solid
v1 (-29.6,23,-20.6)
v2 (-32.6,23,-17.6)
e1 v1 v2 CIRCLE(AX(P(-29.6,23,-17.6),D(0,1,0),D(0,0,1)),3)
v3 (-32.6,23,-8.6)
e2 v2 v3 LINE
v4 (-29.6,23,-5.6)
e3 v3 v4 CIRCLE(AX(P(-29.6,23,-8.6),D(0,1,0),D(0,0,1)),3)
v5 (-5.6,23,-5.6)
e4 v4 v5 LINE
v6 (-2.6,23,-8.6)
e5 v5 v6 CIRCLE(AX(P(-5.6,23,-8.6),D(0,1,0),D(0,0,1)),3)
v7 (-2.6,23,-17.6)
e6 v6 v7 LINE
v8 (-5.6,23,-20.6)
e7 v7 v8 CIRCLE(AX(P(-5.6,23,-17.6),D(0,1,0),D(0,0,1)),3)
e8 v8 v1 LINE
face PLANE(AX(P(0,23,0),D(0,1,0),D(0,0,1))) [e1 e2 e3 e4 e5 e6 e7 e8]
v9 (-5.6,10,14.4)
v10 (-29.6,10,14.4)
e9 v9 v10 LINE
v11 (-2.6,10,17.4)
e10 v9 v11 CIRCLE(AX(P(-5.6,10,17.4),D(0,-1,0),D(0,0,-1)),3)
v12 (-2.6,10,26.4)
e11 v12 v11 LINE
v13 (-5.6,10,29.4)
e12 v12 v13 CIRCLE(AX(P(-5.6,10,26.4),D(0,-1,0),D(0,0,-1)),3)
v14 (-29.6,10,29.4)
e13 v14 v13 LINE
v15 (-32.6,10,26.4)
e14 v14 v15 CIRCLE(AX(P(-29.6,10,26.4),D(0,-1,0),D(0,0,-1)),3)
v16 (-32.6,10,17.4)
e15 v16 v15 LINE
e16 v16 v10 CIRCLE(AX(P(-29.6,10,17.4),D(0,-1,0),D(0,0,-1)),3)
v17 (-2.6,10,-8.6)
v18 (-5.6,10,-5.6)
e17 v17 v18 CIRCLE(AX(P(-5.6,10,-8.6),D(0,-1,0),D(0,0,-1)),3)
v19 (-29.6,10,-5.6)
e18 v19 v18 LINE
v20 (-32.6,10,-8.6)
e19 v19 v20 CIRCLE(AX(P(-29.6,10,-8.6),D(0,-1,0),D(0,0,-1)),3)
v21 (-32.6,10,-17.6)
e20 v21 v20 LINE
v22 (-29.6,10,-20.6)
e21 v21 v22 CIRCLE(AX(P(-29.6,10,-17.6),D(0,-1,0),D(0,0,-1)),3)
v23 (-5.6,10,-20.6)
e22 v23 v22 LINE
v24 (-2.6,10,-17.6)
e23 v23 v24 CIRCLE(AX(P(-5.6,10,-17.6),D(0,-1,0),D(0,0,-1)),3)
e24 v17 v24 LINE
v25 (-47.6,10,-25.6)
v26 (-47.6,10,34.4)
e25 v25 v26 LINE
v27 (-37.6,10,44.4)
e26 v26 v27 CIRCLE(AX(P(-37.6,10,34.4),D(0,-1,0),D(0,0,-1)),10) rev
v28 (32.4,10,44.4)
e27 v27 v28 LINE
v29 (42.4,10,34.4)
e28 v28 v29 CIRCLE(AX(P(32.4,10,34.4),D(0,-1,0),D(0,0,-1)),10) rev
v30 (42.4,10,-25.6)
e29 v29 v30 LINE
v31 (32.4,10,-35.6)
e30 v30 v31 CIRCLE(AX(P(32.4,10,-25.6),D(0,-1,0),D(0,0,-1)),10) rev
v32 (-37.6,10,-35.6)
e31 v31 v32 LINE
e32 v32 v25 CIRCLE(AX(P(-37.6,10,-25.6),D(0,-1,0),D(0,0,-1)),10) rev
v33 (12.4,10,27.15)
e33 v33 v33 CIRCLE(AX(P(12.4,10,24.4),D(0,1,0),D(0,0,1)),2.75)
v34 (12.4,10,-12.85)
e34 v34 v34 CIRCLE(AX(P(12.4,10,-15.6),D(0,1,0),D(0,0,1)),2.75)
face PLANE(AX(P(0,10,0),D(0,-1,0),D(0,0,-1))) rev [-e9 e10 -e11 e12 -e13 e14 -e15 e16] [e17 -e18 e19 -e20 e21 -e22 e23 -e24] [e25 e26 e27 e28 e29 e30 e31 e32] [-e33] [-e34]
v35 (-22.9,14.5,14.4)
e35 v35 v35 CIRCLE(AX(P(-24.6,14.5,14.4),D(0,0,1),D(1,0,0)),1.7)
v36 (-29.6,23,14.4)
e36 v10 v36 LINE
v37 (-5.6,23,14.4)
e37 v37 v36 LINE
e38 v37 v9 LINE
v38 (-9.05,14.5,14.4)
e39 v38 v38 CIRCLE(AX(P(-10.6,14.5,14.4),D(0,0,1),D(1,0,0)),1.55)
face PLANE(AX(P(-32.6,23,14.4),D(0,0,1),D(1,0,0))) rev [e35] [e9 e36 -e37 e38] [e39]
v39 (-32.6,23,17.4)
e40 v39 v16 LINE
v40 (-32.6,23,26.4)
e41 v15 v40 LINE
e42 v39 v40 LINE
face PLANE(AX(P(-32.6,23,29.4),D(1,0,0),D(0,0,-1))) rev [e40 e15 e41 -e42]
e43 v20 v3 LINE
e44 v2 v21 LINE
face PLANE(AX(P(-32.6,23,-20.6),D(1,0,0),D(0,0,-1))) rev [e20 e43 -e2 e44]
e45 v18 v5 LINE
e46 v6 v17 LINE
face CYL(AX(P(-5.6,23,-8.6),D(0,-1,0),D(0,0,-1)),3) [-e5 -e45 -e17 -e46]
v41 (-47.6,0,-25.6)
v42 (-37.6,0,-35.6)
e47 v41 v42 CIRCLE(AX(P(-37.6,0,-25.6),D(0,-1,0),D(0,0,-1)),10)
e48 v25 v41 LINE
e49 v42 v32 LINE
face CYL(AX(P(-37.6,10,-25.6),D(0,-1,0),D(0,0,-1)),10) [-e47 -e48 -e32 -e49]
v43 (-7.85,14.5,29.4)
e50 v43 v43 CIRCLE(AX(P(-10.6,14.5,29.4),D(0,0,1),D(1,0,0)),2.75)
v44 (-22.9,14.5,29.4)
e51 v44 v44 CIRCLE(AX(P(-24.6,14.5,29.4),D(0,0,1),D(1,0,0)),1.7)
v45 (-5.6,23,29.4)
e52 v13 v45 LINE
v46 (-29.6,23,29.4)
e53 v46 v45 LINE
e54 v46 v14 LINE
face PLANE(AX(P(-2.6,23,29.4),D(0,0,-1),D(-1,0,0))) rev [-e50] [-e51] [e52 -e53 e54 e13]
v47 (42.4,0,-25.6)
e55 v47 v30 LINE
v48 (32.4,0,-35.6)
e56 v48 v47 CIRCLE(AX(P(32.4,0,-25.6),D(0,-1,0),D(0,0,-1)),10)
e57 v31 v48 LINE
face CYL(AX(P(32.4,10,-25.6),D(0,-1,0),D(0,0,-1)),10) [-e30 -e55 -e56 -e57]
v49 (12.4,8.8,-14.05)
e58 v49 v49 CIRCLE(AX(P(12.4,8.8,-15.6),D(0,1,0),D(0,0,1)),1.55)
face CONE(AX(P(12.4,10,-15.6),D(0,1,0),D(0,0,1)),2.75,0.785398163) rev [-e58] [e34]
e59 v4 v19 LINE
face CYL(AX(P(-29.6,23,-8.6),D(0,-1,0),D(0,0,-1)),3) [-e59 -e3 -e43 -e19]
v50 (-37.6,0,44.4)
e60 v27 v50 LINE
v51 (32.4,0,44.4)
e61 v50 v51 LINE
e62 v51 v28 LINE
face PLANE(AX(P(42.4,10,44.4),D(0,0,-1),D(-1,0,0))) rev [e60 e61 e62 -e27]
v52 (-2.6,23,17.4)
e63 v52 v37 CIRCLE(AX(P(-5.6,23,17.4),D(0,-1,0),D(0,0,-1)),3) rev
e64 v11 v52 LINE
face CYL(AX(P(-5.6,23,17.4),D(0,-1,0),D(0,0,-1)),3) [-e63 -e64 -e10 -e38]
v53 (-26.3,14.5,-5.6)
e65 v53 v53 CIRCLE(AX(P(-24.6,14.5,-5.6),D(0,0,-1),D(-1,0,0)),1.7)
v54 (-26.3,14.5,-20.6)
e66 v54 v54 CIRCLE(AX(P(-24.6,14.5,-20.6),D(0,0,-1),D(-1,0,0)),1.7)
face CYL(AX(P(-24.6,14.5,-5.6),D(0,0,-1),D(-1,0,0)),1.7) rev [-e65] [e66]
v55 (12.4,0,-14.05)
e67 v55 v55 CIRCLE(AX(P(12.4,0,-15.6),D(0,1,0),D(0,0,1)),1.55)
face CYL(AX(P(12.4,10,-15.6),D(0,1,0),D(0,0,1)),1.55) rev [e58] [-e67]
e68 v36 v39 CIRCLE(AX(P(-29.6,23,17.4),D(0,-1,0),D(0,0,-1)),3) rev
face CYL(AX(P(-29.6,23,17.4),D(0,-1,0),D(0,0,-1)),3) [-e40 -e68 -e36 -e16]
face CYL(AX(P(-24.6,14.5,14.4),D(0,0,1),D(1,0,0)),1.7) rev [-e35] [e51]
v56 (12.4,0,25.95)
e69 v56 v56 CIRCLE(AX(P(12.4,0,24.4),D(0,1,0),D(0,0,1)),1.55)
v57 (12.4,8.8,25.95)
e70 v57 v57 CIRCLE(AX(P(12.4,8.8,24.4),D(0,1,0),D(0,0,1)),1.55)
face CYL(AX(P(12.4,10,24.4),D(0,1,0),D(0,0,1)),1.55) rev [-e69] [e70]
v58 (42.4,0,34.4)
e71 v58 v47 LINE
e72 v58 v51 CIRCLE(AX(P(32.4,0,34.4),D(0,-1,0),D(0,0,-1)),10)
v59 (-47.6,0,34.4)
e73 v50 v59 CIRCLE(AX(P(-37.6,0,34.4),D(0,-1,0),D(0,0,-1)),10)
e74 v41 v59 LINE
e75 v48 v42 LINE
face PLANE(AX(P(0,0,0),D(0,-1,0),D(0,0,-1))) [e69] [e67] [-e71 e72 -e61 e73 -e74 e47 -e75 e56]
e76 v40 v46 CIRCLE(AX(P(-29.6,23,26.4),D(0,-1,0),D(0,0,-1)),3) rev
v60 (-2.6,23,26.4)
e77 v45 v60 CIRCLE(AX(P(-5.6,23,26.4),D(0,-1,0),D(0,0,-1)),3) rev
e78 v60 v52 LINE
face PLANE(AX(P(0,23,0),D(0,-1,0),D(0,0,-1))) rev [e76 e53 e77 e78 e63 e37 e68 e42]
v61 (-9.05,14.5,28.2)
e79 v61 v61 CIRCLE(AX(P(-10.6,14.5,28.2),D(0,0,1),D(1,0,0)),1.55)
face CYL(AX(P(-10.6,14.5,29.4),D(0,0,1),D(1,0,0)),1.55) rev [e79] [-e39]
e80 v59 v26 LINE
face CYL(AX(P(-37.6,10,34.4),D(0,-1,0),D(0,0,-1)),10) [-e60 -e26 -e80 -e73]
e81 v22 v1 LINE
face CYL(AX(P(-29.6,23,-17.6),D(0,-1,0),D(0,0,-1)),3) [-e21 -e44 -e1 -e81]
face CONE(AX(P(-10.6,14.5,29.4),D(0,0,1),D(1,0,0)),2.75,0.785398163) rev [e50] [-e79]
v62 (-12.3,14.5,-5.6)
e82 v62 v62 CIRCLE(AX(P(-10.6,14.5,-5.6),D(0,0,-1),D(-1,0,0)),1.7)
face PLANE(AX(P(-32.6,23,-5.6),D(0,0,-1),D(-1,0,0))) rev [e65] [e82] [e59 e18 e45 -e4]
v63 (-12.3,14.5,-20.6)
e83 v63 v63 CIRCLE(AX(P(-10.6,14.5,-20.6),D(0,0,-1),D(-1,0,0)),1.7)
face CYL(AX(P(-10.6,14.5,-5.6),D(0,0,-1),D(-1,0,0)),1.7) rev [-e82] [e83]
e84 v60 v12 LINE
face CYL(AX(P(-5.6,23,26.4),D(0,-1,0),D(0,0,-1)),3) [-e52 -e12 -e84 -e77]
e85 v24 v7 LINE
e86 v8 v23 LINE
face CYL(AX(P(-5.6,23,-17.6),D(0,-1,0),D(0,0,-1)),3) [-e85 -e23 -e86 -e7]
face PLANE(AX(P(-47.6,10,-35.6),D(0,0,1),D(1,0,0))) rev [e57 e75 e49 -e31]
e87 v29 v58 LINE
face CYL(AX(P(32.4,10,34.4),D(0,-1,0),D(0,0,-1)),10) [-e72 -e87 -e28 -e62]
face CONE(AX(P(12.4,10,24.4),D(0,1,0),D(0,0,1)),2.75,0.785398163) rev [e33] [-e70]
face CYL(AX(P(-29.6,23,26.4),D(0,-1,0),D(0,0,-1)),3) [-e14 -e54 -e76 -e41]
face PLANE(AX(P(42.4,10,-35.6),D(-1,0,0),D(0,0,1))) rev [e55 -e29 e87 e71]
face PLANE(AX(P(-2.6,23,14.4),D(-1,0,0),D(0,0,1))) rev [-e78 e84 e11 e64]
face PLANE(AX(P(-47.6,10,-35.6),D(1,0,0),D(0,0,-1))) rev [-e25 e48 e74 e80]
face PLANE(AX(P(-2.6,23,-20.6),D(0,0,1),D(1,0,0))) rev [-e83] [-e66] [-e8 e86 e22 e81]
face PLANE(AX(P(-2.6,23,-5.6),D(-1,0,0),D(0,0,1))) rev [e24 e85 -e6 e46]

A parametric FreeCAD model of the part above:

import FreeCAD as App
import Part
import Sketcher

V = App.Vector


def edges_at(feature, points):
    """Names of the edges that pass closest to the given points."""
    edges = feature.Shape.Edges
    near = lambda p: min(range(len(edges)), key=lambda i: edges[i].distToShape(Part.Vertex(*p))[0])
    return sorted({f"Edge{near(p) + 1}" for p in points})


def add_polygon(sketch, points):
    """Adds a closed chain of lines whose ends are joined by coincident constraints."""
    first, n = sketch.GeometryCount, len(points)
    for a, b in zip(points, points[1:] + points[:1]):
        sketch.addGeometry(Part.LineSegment(App.Vector(*a, 0), App.Vector(*b, 0)), False)
    for i in range(n):
        sketch.addConstraint(Sketcher.Constraint("Coincident", first + i, 2, first + (i + 1) % n, 1))

doc = App.newDocument("Part")
body = doc.addObject("PartDesign::Body", "Body")

# Sketch on XZ plane
sketch1 = doc.addObject("Sketcher::SketchObject", "Sketch")
body.addObject(sketch1)
sketch1.AttachmentSupport = (doc.XZ_Plane, [""])
sketch1.MapMode = "FlatFace"
add_polygon(sketch1, [(-47.6, -35.6), (-47.6, 44.4), (42.4, 44.4), (42.4, -35.6)])  # lines 0-3
sketch1.addConstraint([
    Sketcher.Constraint("Vertical", 0),
    Sketcher.Constraint("Horizontal", 1),
    Sketcher.Constraint("Vertical", 2),
    Sketcher.Constraint("Horizontal", 3),
    Sketcher.Constraint("DistanceX", 1, 1, 1, 2, 90.0),
    Sketcher.Constraint("DistanceY", 0, 1, 0, 2, 80.0),
    Sketcher.Constraint("DistanceX", 0, 2, -1, 1, 47.6),
    Sketcher.Constraint("DistanceY", -1, 1, 0, 2, 44.4),
])
pad1 = doc.addObject("PartDesign::Pad", "Pad")
body.addObject(pad1)
pad1.Profile = sketch1
pad1.Length = 10
pad1.Reversed = True
doc.recompute()

fillet = doc.addObject("PartDesign::Fillet", "Fillet")
body.addObject(fillet)
fillet.Base = (pad1, edges_at(pad1, [
    (42.4, 5, -35.6),
    (42.4, 5, 44.4),
    (-47.6, 5, 44.4),
    (-47.6, 5, -35.6),
]))
fillet.Radius = 10

# Sketch on XZ plane
sketch2 = doc.addObject("Sketcher::SketchObject", "Sketch001")
body.addObject(sketch2)
sketch2.AttachmentSupport = (doc.XZ_Plane, [""])
sketch2.MapMode = "FlatFace"
sketch2.AttachmentOffset = App.Placement(V(0, 0, -10), App.Rotation())
sketch2.addGeometry([
    Part.Circle(V(12.4, -15.6, 0), V(0, 0, 1), 1.55),
    Part.Circle(V(12.4, 24.4, 0), V(0, 0, 1), 1.55),
], False)
sketch2.addConstraint([
    Sketcher.Constraint("Equal", 0, 1),
    Sketcher.Constraint("Vertical", 0, 3, 1, 3),
    Sketcher.Constraint("Diameter", 0, 3.1),
    Sketcher.Constraint("DistanceY", 0, 3, 1, 3, 40.0),
    Sketcher.Constraint("DistanceX", -1, 1, 0, 3, 12.4),
    Sketcher.Constraint("DistanceY", 0, 3, -1, 1, 15.6),
])
doc.recompute()
hole = doc.addObject("PartDesign::Hole", "Hole")
body.addObject(hole)
hole.Profile = sketch2
hole.ThreadType = "None"
hole.Diameter = 3.1
hole.DepthType = "ThroughAll"
hole.HoleCutType = "Countersink"
hole.HoleCutDiameter = 5.5
hole.HoleCutCountersinkAngle = 90
hole.Reversed = True

# Sketch on XZ plane
sketch3 = doc.addObject("Sketcher::SketchObject", "Sketch002")
body.addObject(sketch3)
sketch3.AttachmentSupport = (doc.XZ_Plane, [""])
sketch3.MapMode = "FlatFace"
sketch3.AttachmentOffset = App.Placement(V(0, 0, -10), App.Rotation())
add_polygon(sketch3, [(-32.6, -20.6), (-32.6, -5.6), (-2.6, -5.6), (-2.6, -20.6)])  # lines 0-3
add_polygon(sketch3, [(-32.6, 14.4), (-32.6, 29.4), (-2.6, 29.4), (-2.6, 14.4)])  # lines 4-7
sketch3.addConstraint([
    Sketcher.Constraint("Vertical", 0),
    Sketcher.Constraint("Horizontal", 1),
    Sketcher.Constraint("Vertical", 2),
    Sketcher.Constraint("Horizontal", 3),
    Sketcher.Constraint("Vertical", 4),
    Sketcher.Constraint("Horizontal", 5),
    Sketcher.Constraint("Vertical", 6),
    Sketcher.Constraint("Horizontal", 7),
    Sketcher.Constraint("Vertical", 3, 2, 4, 2),
    Sketcher.Constraint("Vertical", 2, 2, 5, 2),
    Sketcher.Constraint("Equal", 2, 4),
    Sketcher.Constraint("DistanceX", 1, 1, 1, 2, 30.0),
    Sketcher.Constraint("DistanceY", 0, 1, 0, 2, 15.0),
    Sketcher.Constraint("DistanceY", 0, 2, 4, 2, 35.0),
    Sketcher.Constraint("DistanceX", 0, 2, -1, 1, 32.6),
    Sketcher.Constraint("DistanceY", 0, 2, -1, 1, 5.6),
])
pad2 = doc.addObject("PartDesign::Pad", "Pad001")
body.addObject(pad2)
pad2.Profile = sketch3
pad2.Length = 13
pad2.Reversed = True

# Sketch on XY plane
sketch4 = doc.addObject("Sketcher::SketchObject", "Sketch003")
body.addObject(sketch4)
sketch4.AttachmentSupport = (doc.XY_Plane, [""])
sketch4.MapMode = "FlatFace"
sketch4.AttachmentOffset = App.Placement(V(0, 0, 29.4), App.Rotation())
sketch4.addGeometry(Part.Circle(V(-10.6, 14.5, 0), V(0, 0, 1), 1.55), False)
sketch4.addConstraint([
    Sketcher.Constraint("Diameter", 0, 3.1),
    Sketcher.Constraint("DistanceX", 0, 3, -1, 1, 10.6),
    Sketcher.Constraint("DistanceY", -1, 1, 0, 3, 14.5),
])
doc.recompute()
hole2 = doc.addObject("PartDesign::Hole", "Hole001")
body.addObject(hole2)
hole2.Profile = sketch4
hole2.ThreadType = "None"
hole2.Diameter = 3.1
hole2.DepthType = "Dimension"
hole2.Depth = 15
hole2.DrillPoint = "Angled"
hole2.DrillPointAngle = 118
hole2.HoleCutType = "Countersink"
hole2.HoleCutDiameter = 5.5
hole2.HoleCutCountersinkAngle = 90
doc.recompute()

fillet2 = doc.addObject("PartDesign::Fillet", "Fillet001")
body.addObject(fillet2)
fillet2.Base = (hole2, edges_at(hole2, [
    (-2.6, 16.5, -20.6),
    (-32.6, 16.5, -20.6),
    (-32.6, 16.5, -5.6),
    (-2.6, 16.5, -5.6),
    (-2.6, 16.5, 14.4),
    (-32.6, 16.5, 14.4),
    (-32.6, 16.5, 29.4),
    (-2.6, 16.5, 29.4),
]))
fillet2.Radius = 3

# Sketch on XY plane
sketch5 = doc.addObject("Sketcher::SketchObject", "Sketch004")
body.addObject(sketch5)
sketch5.AttachmentSupport = (doc.XY_Plane, [""])
sketch5.MapMode = "FlatFace"
sketch5.AttachmentOffset = App.Placement(V(0, 0, -20.6), App.Rotation())
sketch5.addGeometry([
    Part.Circle(V(-10.6, 14.5, 0), V(0, 0, 1), 1.7),
    Part.Circle(V(-24.6, 14.5, 0), V(0, 0, 1), 1.7),
], False)
sketch5.addConstraint([
    Sketcher.Constraint("Equal", 0, 1),
    Sketcher.Constraint("Horizontal", 0, 3, 1, 3),
    Sketcher.Constraint("Diameter", 0, 3.4),
    Sketcher.Constraint("DistanceX", 1, 3, 0, 3, 14.0),
    Sketcher.Constraint("DistanceX", 0, 3, -1, 1, 10.6),
    Sketcher.Constraint("DistanceY", -1, 1, 0, 3, 14.5),
])
pocket1 = doc.addObject("PartDesign::Pocket", "Pocket")
body.addObject(pocket1)
pocket1.Profile = sketch5
pocket1.Length = 15
pocket1.Reversed = True

# Sketch on XY plane
sketch6 = doc.addObject("Sketcher::SketchObject", "Sketch005")
body.addObject(sketch6)
sketch6.AttachmentSupport = (doc.XY_Plane, [""])
sketch6.MapMode = "FlatFace"
sketch6.AttachmentOffset = App.Placement(V(0, 0, 14.4), App.Rotation())
sketch6.addGeometry(Part.Circle(V(-24.6, 14.5, 0), V(0, 0, 1), 1.7), False)
sketch6.addConstraint([
    Sketcher.Constraint("Diameter", 0, 3.4),
    Sketcher.Constraint("DistanceX", 0, 3, -1, 1, 24.6),
    Sketcher.Constraint("DistanceY", -1, 1, 0, 3, 14.5),
])
pocket2 = doc.addObject("PartDesign::Pocket", "Pocket001")
body.addObject(pocket2)
pocket2.Profile = sketch6
pocket2.Length = 15
pocket2.Reversed = True

doc.recompute()
